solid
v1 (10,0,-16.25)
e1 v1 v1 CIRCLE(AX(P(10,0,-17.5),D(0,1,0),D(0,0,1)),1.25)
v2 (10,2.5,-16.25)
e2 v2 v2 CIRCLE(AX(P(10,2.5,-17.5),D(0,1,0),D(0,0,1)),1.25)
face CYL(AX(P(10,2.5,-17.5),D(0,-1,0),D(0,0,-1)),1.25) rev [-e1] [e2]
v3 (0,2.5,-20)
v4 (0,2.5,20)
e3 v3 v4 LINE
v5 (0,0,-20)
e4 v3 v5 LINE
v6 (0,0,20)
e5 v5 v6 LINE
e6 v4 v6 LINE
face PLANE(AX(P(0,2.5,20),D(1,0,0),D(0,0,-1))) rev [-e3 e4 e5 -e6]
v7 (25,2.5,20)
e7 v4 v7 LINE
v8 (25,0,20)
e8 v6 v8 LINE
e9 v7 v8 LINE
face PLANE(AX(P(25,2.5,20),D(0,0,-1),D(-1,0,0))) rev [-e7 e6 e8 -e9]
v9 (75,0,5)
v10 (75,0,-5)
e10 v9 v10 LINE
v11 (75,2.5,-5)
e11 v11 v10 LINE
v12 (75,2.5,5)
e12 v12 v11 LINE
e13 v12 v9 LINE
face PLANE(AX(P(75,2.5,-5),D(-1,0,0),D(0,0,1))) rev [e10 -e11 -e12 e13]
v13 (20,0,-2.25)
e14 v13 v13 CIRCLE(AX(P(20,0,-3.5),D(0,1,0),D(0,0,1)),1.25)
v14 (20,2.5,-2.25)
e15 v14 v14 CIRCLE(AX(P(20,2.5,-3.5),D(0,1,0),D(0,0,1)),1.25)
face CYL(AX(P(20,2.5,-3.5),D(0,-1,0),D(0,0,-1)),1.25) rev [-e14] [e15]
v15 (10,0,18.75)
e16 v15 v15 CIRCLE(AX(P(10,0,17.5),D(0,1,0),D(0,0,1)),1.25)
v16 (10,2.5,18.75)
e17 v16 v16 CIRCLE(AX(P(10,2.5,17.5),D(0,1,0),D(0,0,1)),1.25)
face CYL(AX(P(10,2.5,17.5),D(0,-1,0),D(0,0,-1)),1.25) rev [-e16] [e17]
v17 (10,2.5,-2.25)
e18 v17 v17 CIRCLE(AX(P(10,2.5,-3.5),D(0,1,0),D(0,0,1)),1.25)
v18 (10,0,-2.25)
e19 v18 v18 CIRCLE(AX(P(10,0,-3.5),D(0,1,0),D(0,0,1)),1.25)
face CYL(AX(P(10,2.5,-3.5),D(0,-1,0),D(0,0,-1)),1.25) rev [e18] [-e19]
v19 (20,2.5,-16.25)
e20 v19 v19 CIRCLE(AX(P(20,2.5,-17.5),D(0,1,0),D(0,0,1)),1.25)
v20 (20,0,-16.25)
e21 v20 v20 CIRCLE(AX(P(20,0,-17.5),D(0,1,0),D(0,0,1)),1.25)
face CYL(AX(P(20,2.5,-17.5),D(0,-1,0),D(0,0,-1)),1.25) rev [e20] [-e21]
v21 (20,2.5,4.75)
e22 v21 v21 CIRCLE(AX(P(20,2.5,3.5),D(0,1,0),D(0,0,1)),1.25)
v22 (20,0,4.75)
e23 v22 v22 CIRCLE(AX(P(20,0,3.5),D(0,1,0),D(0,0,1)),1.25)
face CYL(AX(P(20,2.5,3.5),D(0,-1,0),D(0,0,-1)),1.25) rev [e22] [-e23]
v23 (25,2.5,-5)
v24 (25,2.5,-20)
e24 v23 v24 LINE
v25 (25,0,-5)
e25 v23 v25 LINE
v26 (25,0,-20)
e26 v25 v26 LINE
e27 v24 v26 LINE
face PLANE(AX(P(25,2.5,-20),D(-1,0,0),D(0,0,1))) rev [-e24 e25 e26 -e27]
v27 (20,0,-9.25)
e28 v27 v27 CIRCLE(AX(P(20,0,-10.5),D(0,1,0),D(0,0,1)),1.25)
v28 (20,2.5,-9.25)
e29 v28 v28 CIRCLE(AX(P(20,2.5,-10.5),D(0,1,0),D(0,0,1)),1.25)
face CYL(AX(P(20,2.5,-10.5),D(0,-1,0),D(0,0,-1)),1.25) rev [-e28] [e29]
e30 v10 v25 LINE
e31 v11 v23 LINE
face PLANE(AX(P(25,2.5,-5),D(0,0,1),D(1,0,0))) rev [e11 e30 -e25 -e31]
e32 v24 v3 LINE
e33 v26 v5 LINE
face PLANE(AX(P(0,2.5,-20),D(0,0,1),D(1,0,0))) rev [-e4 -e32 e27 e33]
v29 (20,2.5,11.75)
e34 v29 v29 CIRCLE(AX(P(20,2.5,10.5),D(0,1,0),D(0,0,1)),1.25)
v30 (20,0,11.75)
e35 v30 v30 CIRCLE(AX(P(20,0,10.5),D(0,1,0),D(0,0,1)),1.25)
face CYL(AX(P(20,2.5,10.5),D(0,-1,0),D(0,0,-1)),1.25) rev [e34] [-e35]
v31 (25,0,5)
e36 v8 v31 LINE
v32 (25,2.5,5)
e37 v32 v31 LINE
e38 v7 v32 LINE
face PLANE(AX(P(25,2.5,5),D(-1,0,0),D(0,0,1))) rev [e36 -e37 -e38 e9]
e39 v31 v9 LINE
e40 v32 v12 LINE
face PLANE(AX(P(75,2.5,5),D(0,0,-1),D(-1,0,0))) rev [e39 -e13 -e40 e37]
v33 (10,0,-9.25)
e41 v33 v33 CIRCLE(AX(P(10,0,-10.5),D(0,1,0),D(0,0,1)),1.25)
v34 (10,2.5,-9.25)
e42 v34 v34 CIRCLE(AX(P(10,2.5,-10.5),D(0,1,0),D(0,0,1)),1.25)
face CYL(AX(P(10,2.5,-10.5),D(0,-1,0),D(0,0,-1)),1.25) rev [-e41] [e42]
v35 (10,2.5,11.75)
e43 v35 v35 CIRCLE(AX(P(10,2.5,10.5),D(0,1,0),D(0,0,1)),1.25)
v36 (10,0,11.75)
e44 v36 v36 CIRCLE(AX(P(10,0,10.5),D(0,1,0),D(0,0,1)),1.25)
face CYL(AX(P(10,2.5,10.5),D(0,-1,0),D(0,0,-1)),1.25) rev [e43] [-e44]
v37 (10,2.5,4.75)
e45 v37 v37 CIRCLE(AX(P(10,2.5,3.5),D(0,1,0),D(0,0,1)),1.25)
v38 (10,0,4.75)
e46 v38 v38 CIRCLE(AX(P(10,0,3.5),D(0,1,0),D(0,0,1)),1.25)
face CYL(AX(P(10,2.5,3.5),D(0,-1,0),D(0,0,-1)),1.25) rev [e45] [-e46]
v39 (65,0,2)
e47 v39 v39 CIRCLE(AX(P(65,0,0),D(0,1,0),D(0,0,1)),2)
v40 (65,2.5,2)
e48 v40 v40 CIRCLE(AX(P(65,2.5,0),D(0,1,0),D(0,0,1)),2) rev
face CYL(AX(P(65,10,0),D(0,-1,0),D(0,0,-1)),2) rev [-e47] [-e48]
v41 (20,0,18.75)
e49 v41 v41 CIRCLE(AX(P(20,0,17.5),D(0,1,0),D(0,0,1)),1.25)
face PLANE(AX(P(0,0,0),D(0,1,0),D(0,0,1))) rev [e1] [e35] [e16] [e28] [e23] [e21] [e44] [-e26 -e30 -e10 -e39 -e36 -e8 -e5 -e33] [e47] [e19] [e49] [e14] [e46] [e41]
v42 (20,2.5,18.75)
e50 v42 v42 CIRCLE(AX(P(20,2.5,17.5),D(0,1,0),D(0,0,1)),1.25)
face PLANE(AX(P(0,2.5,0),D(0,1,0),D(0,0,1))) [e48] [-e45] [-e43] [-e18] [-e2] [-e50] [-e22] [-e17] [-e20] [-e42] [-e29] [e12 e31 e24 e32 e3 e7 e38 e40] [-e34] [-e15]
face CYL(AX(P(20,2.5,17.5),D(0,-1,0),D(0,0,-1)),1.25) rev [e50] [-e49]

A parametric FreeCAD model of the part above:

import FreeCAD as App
import Part
import Sketcher


def add_polygon(sketch, points):
    """Adds a closed chain of lines whose ends are joined by coincident constraints."""
    first, n = sketch.GeometryCount, len(points)
    for a, b in zip(points, points[1:] + points[:1]):
        sketch.addGeometry(Part.LineSegment(App.Vector(*a, 0), App.Vector(*b, 0)), False)
    for i in range(n):
        sketch.addConstraint(Sketcher.Constraint("Coincident", first + i, 2, first + (i + 1) % n, 1))

doc = App.newDocument("Part")
body = doc.addObject("PartDesign::Body", "Body")

sketch1 = body.newObject("Sketcher::SketchObject", "Sketch")
sketch1.AttachmentSupport = (doc.getObject("XZ_Plane"), [""])
sketch1.MapMode = "FlatFace"
add_polygon(sketch1, [(0, -20), (0, 20), (25, 20), (25, 5), (75, 5), (75, -5), (25, -5), (25, -20)])
sketch1.addConstraint([
    Sketcher.Constraint("Vertical", 0),
    Sketcher.Constraint("Horizontal", 1),
    Sketcher.Constraint("Vertical", 2),
    Sketcher.Constraint("Horizontal", 3),
    Sketcher.Constraint("Vertical", 4),
    Sketcher.Constraint("Horizontal", 5),
    Sketcher.Constraint("Vertical", 6),
    Sketcher.Constraint("Horizontal", 7),
    Sketcher.Constraint("Symmetric", 0, 2, 7, 2, -1, 1),
    Sketcher.Constraint("Symmetric", 2, 2, 5, 2, -1),
    Sketcher.Constraint("DistanceX", 1, 1, 1, 2, 25.0),
    Sketcher.Constraint("DistanceX", 3, 1, 3, 2, 50.0),
    Sketcher.Constraint("DistanceY", 0, 1, 0, 2, 40.0),
    Sketcher.Constraint("DistanceY", 2, 2, 2, 1, 15.0),
])
pad1 = body.newObject("PartDesign::Pad", "Pad")
pad1.Profile = sketch1
pad1.Length = 2.5
pad1.Reversed = True

sketch2 = body.newObject("Sketcher::SketchObject", "Sketch001")
sketch2.AttachmentSupport = (doc.getObject("XZ_Plane"), [""])
sketch2.MapMode = "FlatFace"
sketch2.addGeometry([
    Part.Circle(App.Vector(10, -17.5, 0), App.Vector(0, 0, 1), 1.2),
    Part.Circle(App.Vector(20, -17.5, 0), App.Vector(0, 0, 1), 1.2),
    Part.Circle(App.Vector(20, -10.5, 0), App.Vector(0, 0, 1), 1.2),
    Part.Circle(App.Vector(20, -3.5, 0), App.Vector(0, 0, 1), 1.2),
    Part.Circle(App.Vector(20, 3.5, 0), App.Vector(0, 0, 1), 1.2),
    Part.Circle(App.Vector(20, 10.5, 0), App.Vector(0, 0, 1), 1.2),
    Part.Circle(App.Vector(20, 17.5, 0), App.Vector(0, 0, 1), 1.2),
    Part.Circle(App.Vector(10, -10.5, 0), App.Vector(0, 0, 1), 1.2),
    Part.Circle(App.Vector(10, -3.5, 0), App.Vector(0, 0, 1), 1.2),
    Part.Circle(App.Vector(10, 3.5, 0), App.Vector(0, 0, 1), 1.2),
    Part.Circle(App.Vector(10, 10.5, 0), App.Vector(0, 0, 1), 1.2),
    Part.Circle(App.Vector(10, 17.5, 0), App.Vector(0, 0, 1), 1.2),
], False)
sketch2.addConstraint([
    Sketcher.Constraint("Equal", 0, 1),
    Sketcher.Constraint("Equal", 1, 2),
    Sketcher.Constraint("Equal", 2, 3),
    Sketcher.Constraint("Equal", 3, 4),
    Sketcher.Constraint("Equal", 4, 5),
    Sketcher.Constraint("Equal", 5, 6),
    Sketcher.Constraint("Equal", 6, 7),
    Sketcher.Constraint("Equal", 7, 8),
    Sketcher.Constraint("Equal", 8, 9),
    Sketcher.Constraint("Equal", 9, 10),
    Sketcher.Constraint("Equal", 10, 11),
    Sketcher.Constraint("Symmetric", 3, 3, 4, 3, -1),
    Sketcher.Constraint("Symmetric", 2, 3, 5, 3, -1),
    Sketcher.Constraint("Symmetric", 1, 3, 6, 3, -1),
    Sketcher.Constraint("Symmetric", 8, 3, 9, 3, -1),
    Sketcher.Constraint("Symmetric", 7, 3, 10, 3, -1),
    Sketcher.Constraint("Symmetric", 0, 3, 11, 3, -1),
    Sketcher.Constraint("Horizontal", 0, 3, 1, 3),
    Sketcher.Constraint("Horizontal", 2, 3, 7, 3),
    Sketcher.Constraint("Horizontal", 3, 3, 8, 3),
    Sketcher.Constraint("Vertical", 1, 3, 2, 3),
    Sketcher.Constraint("Vertical", 2, 3, 3, 3),
    Sketcher.Constraint("Vertical", 0, 3, 7, 3),
    Sketcher.Constraint("Vertical", 7, 3, 8, 3),
    Sketcher.Constraint("Diameter", 0, 2.5),
    Sketcher.Constraint("DistanceX", -1, 1, 0, 3, 10.0),
    Sketcher.Constraint("DistanceX", -1, 1, 1, 3, 20.0),
    Sketcher.Constraint("DistanceY", 1, 3, 2, 3, 7.0),
    Sketcher.Constraint("DistanceY", 2, 3, 3, 3, 7.0),
    Sketcher.Constraint("DistanceY", 3, 3, 4, 3, 7.0),
])
pocket1 = body.newObject("PartDesign::Pocket", "Pocket")
pocket1.Profile = sketch2
pocket1.Type = "ThroughAll"

sketch3 = body.newObject("Sketcher::SketchObject", "Sketch002")
sketch3.AttachmentSupport = (doc.getObject("XZ_Plane"), [""])
sketch3.MapMode = "FlatFace"
sketch3.addGeometry(Part.Circle(App.Vector(65, 0, 0), App.Vector(0, 0, 1), 2), False)
sketch3.addConstraint([
    Sketcher.Constraint("PointOnObject", 0, 3, -1),
    Sketcher.Constraint("Diameter", 0, 4.0),
    Sketcher.Constraint("DistanceX", -1, 1, 0, 3, 65.0),
])
pocket2 = body.newObject("PartDesign::Pocket", "Pocket001")
pocket2.Profile = sketch3
pocket2.Length = 10

doc.recompute()
